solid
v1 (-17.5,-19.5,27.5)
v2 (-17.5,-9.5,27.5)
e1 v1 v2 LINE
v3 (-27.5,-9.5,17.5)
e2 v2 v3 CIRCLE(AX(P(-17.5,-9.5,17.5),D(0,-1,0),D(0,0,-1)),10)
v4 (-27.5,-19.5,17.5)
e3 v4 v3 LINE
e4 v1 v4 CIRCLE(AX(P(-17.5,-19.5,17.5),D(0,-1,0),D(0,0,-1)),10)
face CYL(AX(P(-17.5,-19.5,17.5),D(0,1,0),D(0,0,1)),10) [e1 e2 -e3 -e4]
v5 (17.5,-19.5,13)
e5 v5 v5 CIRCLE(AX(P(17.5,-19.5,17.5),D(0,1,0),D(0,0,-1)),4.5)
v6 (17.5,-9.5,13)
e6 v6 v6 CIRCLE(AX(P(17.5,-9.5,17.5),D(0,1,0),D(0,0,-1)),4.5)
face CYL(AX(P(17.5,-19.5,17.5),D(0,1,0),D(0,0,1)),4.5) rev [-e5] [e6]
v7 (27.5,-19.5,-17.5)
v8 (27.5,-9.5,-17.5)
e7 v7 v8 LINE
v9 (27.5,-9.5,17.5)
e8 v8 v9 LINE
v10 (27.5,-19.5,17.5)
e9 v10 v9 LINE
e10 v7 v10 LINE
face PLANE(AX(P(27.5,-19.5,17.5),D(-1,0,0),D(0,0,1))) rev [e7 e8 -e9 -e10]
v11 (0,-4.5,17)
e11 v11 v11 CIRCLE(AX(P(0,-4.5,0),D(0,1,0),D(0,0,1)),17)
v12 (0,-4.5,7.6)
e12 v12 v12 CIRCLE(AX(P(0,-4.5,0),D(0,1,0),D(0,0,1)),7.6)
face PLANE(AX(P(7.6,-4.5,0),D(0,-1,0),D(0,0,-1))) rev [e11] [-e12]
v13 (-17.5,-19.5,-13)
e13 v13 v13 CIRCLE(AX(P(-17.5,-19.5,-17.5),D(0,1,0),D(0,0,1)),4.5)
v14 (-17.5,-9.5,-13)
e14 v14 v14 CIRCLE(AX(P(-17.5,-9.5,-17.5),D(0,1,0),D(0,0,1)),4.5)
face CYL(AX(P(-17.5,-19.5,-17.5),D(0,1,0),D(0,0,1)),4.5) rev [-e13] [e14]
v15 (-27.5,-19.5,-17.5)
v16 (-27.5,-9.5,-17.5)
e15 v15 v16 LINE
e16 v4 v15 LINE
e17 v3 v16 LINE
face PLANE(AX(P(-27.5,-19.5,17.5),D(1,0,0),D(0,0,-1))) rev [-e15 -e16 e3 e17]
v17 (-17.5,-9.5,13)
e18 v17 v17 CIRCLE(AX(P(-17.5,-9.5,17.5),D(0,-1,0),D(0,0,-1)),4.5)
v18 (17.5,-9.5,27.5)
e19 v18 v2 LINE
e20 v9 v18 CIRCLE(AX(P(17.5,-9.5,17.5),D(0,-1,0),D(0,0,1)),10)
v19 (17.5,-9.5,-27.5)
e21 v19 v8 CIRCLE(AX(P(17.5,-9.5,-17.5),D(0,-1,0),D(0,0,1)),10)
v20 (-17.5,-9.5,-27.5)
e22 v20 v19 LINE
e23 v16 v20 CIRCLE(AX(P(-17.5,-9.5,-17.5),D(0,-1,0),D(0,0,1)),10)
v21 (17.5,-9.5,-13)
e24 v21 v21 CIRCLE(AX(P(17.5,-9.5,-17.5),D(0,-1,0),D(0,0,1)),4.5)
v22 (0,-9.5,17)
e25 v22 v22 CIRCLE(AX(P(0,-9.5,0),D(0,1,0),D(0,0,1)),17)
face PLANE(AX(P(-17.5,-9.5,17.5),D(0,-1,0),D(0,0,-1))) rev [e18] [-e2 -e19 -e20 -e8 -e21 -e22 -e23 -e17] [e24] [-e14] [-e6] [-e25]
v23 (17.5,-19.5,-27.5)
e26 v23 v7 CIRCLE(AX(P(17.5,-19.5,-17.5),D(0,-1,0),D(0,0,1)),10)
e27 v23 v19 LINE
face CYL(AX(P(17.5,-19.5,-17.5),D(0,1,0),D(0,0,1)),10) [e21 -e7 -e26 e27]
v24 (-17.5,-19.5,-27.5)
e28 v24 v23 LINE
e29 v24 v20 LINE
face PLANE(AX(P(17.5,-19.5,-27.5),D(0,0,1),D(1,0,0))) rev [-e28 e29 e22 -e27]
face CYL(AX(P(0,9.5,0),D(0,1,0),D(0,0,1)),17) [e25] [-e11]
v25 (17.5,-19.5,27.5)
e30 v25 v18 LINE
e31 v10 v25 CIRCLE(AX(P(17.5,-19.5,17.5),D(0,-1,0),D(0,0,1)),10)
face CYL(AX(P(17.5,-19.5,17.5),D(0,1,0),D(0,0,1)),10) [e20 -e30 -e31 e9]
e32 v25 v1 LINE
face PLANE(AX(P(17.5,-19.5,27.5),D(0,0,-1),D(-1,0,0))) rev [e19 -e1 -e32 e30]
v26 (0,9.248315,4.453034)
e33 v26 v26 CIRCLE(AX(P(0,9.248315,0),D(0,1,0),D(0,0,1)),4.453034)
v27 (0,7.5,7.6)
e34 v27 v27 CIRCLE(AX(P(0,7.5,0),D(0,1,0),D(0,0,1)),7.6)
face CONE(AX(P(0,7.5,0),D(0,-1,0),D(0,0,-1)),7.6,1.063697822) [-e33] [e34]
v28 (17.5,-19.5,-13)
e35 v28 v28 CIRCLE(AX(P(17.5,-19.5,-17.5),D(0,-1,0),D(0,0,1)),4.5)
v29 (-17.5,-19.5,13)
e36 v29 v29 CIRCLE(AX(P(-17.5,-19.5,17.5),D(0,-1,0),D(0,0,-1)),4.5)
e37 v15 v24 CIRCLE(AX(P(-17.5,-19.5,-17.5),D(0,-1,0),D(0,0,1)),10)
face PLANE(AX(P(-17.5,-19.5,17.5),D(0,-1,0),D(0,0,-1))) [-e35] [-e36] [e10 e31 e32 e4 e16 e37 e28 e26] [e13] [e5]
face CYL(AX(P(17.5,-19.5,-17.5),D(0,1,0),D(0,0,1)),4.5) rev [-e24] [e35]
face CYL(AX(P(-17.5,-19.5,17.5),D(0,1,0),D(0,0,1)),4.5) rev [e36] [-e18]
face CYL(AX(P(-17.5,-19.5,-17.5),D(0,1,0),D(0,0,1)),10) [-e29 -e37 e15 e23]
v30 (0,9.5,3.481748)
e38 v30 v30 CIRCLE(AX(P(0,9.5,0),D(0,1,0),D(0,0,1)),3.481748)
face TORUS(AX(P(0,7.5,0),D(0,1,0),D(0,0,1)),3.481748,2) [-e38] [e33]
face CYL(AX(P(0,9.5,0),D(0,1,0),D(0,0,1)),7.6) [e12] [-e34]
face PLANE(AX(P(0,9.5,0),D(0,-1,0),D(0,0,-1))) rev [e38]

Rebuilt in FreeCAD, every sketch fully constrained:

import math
import FreeCAD as App
import Part
import Sketcher

V = App.Vector
Q = App.Units.Quantity

doc = App.newDocument("Part")
body = doc.addObject("PartDesign::Body", "Body")

# Sketch on XY plane
sketch1 = body.newObject("Sketcher::SketchObject", "Sketch")
sketch1.AttachmentSupport = (doc.getObject("XY_Plane"), [""])
sketch1.MapMode = "FlatFace"
sketch1.addGeometry([
    Part.LineSegment(V(3.5, 9.5, 0), V(0, 9.5, 0)),  # 0
    Part.LineSegment(V(0, 9.5, 0), V(0, -9.5, 0)),  # 1
    Part.LineSegment(V(0, -9.5, 0), V(17, -9.5, 0)),  # 2
    Part.LineSegment(V(17, -9.5, 0), V(17, -4.5, 0)),  # 3
    Part.LineSegment(V(17, -4.5, 0), V(7.6, -4.5, 0)),  # 4
    Part.LineSegment(V(7.6, -4.5, 0), V(7.6, 7.5, 0)),  # 5
    Part.LineSegment(V(7.6, 7.5, 0), V(4.5, 9.2, 0)),  # 6
    Part.ArcOfCircle(Part.Circle(V(3.5, 7.5, 0), V(0, 0, 1), 2), math.radians(61), math.radians(90)),  # 7
], False)
sketch1.addConstraint([
    Sketcher.Constraint("Coincident", 0, 2, 1, 1),
    Sketcher.Constraint("Coincident", 1, 2, 2, 1),
    Sketcher.Constraint("Coincident", 2, 2, 3, 1),
    Sketcher.Constraint("Coincident", 3, 2, 4, 1),
    Sketcher.Constraint("Coincident", 4, 2, 5, 1),
    Sketcher.Constraint("Coincident", 5, 2, 6, 1),
    Sketcher.Constraint("Tangent", 6, 2, 7, 1),
    Sketcher.Constraint("Tangent", 7, 2, 0, 1),
    Sketcher.Constraint("Horizontal", 0),
    Sketcher.Constraint("Vertical", 1),
    Sketcher.Constraint("Horizontal", 2),
    Sketcher.Constraint("Vertical", 3),
    Sketcher.Constraint("Horizontal", 4),
    Sketcher.Constraint("Vertical", 5),
    Sketcher.Constraint("Symmetric", 0, 2, 1, 2, -1, 1),
    Sketcher.Constraint("Horizontal", 7, 3, 5, 2),
    Sketcher.Constraint("Radius", 7, Q("2 mm")),
    Sketcher.Constraint("DistanceX", 2, 1, 2, 2, Q("17 mm")),
    Sketcher.Constraint("DistanceY", 1, 2, 1, 1, Q("19 mm")),
    Sketcher.Constraint("DistanceY", 3, 1, 3, 2, Q("5 mm")),
    Sketcher.Constraint("DistanceX", 4, 2, 4, 1, Q("9.4 mm")),
    Sketcher.Constraint("Distance", 6, Q("3.6 mm")),
])
revolution = body.newObject("PartDesign::Revolution", "Revolution")
revolution.Profile = sketch1
revolution.ReferenceAxis = (sketch1, ["V_Axis"])
revolution.Angle = 360

# Sketch on XZ plane
sketch2 = body.newObject("Sketcher::SketchObject", "Sketch001")
sketch2.AttachmentSupport = (doc.getObject("XZ_Plane"), [""])
sketch2.MapMode = "FlatFace"
sketch2.AttachmentOffset = App.Placement(V(0, 0, 9.5), App.Rotation())
sketch2.addGeometry([
    Part.LineSegment(V(18, 28, 0), V(-18, 28, 0)),  # 0
    Part.ArcOfCircle(Part.Circle(V(-18, 18, 0), V(0, 0, 1), 10), math.radians(90), math.radians(180)),  # 1
    Part.LineSegment(V(-28, 18, 0), V(-28, -18, 0)),  # 2
    Part.ArcOfCircle(Part.Circle(V(-18, -18, 0), V(0, 0, 1), 10), math.radians(180), math.radians(270)),  # 3
    Part.LineSegment(V(-18, -28, 0), V(18, -28, 0)),  # 4
    Part.ArcOfCircle(Part.Circle(V(18, -18, 0), V(0, 0, 1), 10), math.radians(-90), math.radians(0)),  # 5
    Part.LineSegment(V(28, -18, 0), V(28, 18, 0)),  # 6
    Part.ArcOfCircle(Part.Circle(V(18, 18, 0), V(0, 0, 1), 10), math.radians(0), math.radians(90)),  # 7
], False)
sketch2.addConstraint([
    Sketcher.Constraint("Tangent", 0, 2, 1, 1),
    Sketcher.Constraint("Tangent", 1, 2, 2, 1),
    Sketcher.Constraint("Tangent", 2, 2, 3, 1),
    Sketcher.Constraint("Tangent", 3, 2, 4, 1),
    Sketcher.Constraint("Tangent", 4, 2, 5, 1),
    Sketcher.Constraint("Tangent", 5, 2, 6, 1),
    Sketcher.Constraint("Tangent", 6, 2, 7, 1),
    Sketcher.Constraint("Tangent", 7, 2, 0, 1),
    Sketcher.Constraint("Horizontal", 0),
    Sketcher.Constraint("Vertical", 2),
    Sketcher.Constraint("Horizontal", 4),
    Sketcher.Constraint("Vertical", 6),
    Sketcher.Constraint("Equal", 1, 3),
    Sketcher.Constraint("Equal", 3, 5),
    Sketcher.Constraint("Equal", 5, 7),
    Sketcher.Constraint("Symmetric", 1, 3, 5, 3, -1, 1),
    Sketcher.Constraint("Equal", 4, 2),
    Sketcher.Constraint("Radius", 1, Q("10 mm")),
    Sketcher.Constraint("DistanceX", 0, 2, 0, 1, Q("35 mm")),
])
pad1 = body.newObject("PartDesign::Pad", "Pad")
pad1.Profile = sketch2
pad1.Length = 10

# Sketch on XZ plane
sketch3 = body.newObject("Sketcher::SketchObject", "Sketch002")
sketch3.AttachmentSupport = (doc.getObject("XZ_Plane"), [""])
sketch3.MapMode = "FlatFace"
sketch3.AttachmentOffset = App.Placement(V(0, 0, 9.5), App.Rotation())
sketch3.addGeometry(Part.Circle(V(-17.5, -17.5, 0), V(0, 0, 1), 4.5), False)
sketch3.addConstraint([
    Sketcher.Constraint("Diameter", 0, Q("9 mm")),
    Sketcher.Constraint("DistanceX", 0, 3, -1, 1, Q("17.5 mm")),
    Sketcher.Constraint("DistanceY", 0, 3, -1, 1, Q("17.5 mm")),
])
pocket1 = body.newObject("PartDesign::Pocket", "Pocket")
pocket1.Profile = sketch3
pocket1.Type = "ThroughAll"
pocket1.Reversed = True
doc.recompute()

mirrored = body.newObject("PartDesign::Mirrored", "Mirrored")
mirrored.Originals = [pocket1]
mirrored.MirrorPlane = (doc.getObject("XY_Plane"), [""])
body.Tip = mirrored
doc.recompute()

mirrored2 = body.newObject("PartDesign::Mirrored", "Mirrored001")
mirrored2.Originals = [pocket1]
mirrored2.MirrorPlane = (doc.getObject("YZ_Plane"), [""])
body.Tip = mirrored2

# Sketch on XZ plane
sketch4 = body.newObject("Sketcher::SketchObject", "Sketch003")
sketch4.AttachmentSupport = (doc.getObject("XZ_Plane"), [""])
sketch4.MapMode = "FlatFace"
sketch4.AttachmentOffset = App.Placement(V(0, 0, 9.5), App.Rotation())
sketch4.addGeometry(Part.Circle(V(17.5, 17.5, 0), V(0, 0, 1), 4.5), False)
sketch4.addConstraint([
    Sketcher.Constraint("Diameter", 0, Q("9 mm")),
    Sketcher.Constraint("DistanceX", -1, 1, 0, 3, Q("17.5 mm")),
    Sketcher.Constraint("DistanceY", -1, 1, 0, 3, Q("17.5 mm")),
])
pocket2 = body.newObject("PartDesign::Pocket", "Pocket001")
pocket2.Profile = sketch4
pocket2.Type = "ThroughAll"
pocket2.Reversed = True

doc.recompute()
